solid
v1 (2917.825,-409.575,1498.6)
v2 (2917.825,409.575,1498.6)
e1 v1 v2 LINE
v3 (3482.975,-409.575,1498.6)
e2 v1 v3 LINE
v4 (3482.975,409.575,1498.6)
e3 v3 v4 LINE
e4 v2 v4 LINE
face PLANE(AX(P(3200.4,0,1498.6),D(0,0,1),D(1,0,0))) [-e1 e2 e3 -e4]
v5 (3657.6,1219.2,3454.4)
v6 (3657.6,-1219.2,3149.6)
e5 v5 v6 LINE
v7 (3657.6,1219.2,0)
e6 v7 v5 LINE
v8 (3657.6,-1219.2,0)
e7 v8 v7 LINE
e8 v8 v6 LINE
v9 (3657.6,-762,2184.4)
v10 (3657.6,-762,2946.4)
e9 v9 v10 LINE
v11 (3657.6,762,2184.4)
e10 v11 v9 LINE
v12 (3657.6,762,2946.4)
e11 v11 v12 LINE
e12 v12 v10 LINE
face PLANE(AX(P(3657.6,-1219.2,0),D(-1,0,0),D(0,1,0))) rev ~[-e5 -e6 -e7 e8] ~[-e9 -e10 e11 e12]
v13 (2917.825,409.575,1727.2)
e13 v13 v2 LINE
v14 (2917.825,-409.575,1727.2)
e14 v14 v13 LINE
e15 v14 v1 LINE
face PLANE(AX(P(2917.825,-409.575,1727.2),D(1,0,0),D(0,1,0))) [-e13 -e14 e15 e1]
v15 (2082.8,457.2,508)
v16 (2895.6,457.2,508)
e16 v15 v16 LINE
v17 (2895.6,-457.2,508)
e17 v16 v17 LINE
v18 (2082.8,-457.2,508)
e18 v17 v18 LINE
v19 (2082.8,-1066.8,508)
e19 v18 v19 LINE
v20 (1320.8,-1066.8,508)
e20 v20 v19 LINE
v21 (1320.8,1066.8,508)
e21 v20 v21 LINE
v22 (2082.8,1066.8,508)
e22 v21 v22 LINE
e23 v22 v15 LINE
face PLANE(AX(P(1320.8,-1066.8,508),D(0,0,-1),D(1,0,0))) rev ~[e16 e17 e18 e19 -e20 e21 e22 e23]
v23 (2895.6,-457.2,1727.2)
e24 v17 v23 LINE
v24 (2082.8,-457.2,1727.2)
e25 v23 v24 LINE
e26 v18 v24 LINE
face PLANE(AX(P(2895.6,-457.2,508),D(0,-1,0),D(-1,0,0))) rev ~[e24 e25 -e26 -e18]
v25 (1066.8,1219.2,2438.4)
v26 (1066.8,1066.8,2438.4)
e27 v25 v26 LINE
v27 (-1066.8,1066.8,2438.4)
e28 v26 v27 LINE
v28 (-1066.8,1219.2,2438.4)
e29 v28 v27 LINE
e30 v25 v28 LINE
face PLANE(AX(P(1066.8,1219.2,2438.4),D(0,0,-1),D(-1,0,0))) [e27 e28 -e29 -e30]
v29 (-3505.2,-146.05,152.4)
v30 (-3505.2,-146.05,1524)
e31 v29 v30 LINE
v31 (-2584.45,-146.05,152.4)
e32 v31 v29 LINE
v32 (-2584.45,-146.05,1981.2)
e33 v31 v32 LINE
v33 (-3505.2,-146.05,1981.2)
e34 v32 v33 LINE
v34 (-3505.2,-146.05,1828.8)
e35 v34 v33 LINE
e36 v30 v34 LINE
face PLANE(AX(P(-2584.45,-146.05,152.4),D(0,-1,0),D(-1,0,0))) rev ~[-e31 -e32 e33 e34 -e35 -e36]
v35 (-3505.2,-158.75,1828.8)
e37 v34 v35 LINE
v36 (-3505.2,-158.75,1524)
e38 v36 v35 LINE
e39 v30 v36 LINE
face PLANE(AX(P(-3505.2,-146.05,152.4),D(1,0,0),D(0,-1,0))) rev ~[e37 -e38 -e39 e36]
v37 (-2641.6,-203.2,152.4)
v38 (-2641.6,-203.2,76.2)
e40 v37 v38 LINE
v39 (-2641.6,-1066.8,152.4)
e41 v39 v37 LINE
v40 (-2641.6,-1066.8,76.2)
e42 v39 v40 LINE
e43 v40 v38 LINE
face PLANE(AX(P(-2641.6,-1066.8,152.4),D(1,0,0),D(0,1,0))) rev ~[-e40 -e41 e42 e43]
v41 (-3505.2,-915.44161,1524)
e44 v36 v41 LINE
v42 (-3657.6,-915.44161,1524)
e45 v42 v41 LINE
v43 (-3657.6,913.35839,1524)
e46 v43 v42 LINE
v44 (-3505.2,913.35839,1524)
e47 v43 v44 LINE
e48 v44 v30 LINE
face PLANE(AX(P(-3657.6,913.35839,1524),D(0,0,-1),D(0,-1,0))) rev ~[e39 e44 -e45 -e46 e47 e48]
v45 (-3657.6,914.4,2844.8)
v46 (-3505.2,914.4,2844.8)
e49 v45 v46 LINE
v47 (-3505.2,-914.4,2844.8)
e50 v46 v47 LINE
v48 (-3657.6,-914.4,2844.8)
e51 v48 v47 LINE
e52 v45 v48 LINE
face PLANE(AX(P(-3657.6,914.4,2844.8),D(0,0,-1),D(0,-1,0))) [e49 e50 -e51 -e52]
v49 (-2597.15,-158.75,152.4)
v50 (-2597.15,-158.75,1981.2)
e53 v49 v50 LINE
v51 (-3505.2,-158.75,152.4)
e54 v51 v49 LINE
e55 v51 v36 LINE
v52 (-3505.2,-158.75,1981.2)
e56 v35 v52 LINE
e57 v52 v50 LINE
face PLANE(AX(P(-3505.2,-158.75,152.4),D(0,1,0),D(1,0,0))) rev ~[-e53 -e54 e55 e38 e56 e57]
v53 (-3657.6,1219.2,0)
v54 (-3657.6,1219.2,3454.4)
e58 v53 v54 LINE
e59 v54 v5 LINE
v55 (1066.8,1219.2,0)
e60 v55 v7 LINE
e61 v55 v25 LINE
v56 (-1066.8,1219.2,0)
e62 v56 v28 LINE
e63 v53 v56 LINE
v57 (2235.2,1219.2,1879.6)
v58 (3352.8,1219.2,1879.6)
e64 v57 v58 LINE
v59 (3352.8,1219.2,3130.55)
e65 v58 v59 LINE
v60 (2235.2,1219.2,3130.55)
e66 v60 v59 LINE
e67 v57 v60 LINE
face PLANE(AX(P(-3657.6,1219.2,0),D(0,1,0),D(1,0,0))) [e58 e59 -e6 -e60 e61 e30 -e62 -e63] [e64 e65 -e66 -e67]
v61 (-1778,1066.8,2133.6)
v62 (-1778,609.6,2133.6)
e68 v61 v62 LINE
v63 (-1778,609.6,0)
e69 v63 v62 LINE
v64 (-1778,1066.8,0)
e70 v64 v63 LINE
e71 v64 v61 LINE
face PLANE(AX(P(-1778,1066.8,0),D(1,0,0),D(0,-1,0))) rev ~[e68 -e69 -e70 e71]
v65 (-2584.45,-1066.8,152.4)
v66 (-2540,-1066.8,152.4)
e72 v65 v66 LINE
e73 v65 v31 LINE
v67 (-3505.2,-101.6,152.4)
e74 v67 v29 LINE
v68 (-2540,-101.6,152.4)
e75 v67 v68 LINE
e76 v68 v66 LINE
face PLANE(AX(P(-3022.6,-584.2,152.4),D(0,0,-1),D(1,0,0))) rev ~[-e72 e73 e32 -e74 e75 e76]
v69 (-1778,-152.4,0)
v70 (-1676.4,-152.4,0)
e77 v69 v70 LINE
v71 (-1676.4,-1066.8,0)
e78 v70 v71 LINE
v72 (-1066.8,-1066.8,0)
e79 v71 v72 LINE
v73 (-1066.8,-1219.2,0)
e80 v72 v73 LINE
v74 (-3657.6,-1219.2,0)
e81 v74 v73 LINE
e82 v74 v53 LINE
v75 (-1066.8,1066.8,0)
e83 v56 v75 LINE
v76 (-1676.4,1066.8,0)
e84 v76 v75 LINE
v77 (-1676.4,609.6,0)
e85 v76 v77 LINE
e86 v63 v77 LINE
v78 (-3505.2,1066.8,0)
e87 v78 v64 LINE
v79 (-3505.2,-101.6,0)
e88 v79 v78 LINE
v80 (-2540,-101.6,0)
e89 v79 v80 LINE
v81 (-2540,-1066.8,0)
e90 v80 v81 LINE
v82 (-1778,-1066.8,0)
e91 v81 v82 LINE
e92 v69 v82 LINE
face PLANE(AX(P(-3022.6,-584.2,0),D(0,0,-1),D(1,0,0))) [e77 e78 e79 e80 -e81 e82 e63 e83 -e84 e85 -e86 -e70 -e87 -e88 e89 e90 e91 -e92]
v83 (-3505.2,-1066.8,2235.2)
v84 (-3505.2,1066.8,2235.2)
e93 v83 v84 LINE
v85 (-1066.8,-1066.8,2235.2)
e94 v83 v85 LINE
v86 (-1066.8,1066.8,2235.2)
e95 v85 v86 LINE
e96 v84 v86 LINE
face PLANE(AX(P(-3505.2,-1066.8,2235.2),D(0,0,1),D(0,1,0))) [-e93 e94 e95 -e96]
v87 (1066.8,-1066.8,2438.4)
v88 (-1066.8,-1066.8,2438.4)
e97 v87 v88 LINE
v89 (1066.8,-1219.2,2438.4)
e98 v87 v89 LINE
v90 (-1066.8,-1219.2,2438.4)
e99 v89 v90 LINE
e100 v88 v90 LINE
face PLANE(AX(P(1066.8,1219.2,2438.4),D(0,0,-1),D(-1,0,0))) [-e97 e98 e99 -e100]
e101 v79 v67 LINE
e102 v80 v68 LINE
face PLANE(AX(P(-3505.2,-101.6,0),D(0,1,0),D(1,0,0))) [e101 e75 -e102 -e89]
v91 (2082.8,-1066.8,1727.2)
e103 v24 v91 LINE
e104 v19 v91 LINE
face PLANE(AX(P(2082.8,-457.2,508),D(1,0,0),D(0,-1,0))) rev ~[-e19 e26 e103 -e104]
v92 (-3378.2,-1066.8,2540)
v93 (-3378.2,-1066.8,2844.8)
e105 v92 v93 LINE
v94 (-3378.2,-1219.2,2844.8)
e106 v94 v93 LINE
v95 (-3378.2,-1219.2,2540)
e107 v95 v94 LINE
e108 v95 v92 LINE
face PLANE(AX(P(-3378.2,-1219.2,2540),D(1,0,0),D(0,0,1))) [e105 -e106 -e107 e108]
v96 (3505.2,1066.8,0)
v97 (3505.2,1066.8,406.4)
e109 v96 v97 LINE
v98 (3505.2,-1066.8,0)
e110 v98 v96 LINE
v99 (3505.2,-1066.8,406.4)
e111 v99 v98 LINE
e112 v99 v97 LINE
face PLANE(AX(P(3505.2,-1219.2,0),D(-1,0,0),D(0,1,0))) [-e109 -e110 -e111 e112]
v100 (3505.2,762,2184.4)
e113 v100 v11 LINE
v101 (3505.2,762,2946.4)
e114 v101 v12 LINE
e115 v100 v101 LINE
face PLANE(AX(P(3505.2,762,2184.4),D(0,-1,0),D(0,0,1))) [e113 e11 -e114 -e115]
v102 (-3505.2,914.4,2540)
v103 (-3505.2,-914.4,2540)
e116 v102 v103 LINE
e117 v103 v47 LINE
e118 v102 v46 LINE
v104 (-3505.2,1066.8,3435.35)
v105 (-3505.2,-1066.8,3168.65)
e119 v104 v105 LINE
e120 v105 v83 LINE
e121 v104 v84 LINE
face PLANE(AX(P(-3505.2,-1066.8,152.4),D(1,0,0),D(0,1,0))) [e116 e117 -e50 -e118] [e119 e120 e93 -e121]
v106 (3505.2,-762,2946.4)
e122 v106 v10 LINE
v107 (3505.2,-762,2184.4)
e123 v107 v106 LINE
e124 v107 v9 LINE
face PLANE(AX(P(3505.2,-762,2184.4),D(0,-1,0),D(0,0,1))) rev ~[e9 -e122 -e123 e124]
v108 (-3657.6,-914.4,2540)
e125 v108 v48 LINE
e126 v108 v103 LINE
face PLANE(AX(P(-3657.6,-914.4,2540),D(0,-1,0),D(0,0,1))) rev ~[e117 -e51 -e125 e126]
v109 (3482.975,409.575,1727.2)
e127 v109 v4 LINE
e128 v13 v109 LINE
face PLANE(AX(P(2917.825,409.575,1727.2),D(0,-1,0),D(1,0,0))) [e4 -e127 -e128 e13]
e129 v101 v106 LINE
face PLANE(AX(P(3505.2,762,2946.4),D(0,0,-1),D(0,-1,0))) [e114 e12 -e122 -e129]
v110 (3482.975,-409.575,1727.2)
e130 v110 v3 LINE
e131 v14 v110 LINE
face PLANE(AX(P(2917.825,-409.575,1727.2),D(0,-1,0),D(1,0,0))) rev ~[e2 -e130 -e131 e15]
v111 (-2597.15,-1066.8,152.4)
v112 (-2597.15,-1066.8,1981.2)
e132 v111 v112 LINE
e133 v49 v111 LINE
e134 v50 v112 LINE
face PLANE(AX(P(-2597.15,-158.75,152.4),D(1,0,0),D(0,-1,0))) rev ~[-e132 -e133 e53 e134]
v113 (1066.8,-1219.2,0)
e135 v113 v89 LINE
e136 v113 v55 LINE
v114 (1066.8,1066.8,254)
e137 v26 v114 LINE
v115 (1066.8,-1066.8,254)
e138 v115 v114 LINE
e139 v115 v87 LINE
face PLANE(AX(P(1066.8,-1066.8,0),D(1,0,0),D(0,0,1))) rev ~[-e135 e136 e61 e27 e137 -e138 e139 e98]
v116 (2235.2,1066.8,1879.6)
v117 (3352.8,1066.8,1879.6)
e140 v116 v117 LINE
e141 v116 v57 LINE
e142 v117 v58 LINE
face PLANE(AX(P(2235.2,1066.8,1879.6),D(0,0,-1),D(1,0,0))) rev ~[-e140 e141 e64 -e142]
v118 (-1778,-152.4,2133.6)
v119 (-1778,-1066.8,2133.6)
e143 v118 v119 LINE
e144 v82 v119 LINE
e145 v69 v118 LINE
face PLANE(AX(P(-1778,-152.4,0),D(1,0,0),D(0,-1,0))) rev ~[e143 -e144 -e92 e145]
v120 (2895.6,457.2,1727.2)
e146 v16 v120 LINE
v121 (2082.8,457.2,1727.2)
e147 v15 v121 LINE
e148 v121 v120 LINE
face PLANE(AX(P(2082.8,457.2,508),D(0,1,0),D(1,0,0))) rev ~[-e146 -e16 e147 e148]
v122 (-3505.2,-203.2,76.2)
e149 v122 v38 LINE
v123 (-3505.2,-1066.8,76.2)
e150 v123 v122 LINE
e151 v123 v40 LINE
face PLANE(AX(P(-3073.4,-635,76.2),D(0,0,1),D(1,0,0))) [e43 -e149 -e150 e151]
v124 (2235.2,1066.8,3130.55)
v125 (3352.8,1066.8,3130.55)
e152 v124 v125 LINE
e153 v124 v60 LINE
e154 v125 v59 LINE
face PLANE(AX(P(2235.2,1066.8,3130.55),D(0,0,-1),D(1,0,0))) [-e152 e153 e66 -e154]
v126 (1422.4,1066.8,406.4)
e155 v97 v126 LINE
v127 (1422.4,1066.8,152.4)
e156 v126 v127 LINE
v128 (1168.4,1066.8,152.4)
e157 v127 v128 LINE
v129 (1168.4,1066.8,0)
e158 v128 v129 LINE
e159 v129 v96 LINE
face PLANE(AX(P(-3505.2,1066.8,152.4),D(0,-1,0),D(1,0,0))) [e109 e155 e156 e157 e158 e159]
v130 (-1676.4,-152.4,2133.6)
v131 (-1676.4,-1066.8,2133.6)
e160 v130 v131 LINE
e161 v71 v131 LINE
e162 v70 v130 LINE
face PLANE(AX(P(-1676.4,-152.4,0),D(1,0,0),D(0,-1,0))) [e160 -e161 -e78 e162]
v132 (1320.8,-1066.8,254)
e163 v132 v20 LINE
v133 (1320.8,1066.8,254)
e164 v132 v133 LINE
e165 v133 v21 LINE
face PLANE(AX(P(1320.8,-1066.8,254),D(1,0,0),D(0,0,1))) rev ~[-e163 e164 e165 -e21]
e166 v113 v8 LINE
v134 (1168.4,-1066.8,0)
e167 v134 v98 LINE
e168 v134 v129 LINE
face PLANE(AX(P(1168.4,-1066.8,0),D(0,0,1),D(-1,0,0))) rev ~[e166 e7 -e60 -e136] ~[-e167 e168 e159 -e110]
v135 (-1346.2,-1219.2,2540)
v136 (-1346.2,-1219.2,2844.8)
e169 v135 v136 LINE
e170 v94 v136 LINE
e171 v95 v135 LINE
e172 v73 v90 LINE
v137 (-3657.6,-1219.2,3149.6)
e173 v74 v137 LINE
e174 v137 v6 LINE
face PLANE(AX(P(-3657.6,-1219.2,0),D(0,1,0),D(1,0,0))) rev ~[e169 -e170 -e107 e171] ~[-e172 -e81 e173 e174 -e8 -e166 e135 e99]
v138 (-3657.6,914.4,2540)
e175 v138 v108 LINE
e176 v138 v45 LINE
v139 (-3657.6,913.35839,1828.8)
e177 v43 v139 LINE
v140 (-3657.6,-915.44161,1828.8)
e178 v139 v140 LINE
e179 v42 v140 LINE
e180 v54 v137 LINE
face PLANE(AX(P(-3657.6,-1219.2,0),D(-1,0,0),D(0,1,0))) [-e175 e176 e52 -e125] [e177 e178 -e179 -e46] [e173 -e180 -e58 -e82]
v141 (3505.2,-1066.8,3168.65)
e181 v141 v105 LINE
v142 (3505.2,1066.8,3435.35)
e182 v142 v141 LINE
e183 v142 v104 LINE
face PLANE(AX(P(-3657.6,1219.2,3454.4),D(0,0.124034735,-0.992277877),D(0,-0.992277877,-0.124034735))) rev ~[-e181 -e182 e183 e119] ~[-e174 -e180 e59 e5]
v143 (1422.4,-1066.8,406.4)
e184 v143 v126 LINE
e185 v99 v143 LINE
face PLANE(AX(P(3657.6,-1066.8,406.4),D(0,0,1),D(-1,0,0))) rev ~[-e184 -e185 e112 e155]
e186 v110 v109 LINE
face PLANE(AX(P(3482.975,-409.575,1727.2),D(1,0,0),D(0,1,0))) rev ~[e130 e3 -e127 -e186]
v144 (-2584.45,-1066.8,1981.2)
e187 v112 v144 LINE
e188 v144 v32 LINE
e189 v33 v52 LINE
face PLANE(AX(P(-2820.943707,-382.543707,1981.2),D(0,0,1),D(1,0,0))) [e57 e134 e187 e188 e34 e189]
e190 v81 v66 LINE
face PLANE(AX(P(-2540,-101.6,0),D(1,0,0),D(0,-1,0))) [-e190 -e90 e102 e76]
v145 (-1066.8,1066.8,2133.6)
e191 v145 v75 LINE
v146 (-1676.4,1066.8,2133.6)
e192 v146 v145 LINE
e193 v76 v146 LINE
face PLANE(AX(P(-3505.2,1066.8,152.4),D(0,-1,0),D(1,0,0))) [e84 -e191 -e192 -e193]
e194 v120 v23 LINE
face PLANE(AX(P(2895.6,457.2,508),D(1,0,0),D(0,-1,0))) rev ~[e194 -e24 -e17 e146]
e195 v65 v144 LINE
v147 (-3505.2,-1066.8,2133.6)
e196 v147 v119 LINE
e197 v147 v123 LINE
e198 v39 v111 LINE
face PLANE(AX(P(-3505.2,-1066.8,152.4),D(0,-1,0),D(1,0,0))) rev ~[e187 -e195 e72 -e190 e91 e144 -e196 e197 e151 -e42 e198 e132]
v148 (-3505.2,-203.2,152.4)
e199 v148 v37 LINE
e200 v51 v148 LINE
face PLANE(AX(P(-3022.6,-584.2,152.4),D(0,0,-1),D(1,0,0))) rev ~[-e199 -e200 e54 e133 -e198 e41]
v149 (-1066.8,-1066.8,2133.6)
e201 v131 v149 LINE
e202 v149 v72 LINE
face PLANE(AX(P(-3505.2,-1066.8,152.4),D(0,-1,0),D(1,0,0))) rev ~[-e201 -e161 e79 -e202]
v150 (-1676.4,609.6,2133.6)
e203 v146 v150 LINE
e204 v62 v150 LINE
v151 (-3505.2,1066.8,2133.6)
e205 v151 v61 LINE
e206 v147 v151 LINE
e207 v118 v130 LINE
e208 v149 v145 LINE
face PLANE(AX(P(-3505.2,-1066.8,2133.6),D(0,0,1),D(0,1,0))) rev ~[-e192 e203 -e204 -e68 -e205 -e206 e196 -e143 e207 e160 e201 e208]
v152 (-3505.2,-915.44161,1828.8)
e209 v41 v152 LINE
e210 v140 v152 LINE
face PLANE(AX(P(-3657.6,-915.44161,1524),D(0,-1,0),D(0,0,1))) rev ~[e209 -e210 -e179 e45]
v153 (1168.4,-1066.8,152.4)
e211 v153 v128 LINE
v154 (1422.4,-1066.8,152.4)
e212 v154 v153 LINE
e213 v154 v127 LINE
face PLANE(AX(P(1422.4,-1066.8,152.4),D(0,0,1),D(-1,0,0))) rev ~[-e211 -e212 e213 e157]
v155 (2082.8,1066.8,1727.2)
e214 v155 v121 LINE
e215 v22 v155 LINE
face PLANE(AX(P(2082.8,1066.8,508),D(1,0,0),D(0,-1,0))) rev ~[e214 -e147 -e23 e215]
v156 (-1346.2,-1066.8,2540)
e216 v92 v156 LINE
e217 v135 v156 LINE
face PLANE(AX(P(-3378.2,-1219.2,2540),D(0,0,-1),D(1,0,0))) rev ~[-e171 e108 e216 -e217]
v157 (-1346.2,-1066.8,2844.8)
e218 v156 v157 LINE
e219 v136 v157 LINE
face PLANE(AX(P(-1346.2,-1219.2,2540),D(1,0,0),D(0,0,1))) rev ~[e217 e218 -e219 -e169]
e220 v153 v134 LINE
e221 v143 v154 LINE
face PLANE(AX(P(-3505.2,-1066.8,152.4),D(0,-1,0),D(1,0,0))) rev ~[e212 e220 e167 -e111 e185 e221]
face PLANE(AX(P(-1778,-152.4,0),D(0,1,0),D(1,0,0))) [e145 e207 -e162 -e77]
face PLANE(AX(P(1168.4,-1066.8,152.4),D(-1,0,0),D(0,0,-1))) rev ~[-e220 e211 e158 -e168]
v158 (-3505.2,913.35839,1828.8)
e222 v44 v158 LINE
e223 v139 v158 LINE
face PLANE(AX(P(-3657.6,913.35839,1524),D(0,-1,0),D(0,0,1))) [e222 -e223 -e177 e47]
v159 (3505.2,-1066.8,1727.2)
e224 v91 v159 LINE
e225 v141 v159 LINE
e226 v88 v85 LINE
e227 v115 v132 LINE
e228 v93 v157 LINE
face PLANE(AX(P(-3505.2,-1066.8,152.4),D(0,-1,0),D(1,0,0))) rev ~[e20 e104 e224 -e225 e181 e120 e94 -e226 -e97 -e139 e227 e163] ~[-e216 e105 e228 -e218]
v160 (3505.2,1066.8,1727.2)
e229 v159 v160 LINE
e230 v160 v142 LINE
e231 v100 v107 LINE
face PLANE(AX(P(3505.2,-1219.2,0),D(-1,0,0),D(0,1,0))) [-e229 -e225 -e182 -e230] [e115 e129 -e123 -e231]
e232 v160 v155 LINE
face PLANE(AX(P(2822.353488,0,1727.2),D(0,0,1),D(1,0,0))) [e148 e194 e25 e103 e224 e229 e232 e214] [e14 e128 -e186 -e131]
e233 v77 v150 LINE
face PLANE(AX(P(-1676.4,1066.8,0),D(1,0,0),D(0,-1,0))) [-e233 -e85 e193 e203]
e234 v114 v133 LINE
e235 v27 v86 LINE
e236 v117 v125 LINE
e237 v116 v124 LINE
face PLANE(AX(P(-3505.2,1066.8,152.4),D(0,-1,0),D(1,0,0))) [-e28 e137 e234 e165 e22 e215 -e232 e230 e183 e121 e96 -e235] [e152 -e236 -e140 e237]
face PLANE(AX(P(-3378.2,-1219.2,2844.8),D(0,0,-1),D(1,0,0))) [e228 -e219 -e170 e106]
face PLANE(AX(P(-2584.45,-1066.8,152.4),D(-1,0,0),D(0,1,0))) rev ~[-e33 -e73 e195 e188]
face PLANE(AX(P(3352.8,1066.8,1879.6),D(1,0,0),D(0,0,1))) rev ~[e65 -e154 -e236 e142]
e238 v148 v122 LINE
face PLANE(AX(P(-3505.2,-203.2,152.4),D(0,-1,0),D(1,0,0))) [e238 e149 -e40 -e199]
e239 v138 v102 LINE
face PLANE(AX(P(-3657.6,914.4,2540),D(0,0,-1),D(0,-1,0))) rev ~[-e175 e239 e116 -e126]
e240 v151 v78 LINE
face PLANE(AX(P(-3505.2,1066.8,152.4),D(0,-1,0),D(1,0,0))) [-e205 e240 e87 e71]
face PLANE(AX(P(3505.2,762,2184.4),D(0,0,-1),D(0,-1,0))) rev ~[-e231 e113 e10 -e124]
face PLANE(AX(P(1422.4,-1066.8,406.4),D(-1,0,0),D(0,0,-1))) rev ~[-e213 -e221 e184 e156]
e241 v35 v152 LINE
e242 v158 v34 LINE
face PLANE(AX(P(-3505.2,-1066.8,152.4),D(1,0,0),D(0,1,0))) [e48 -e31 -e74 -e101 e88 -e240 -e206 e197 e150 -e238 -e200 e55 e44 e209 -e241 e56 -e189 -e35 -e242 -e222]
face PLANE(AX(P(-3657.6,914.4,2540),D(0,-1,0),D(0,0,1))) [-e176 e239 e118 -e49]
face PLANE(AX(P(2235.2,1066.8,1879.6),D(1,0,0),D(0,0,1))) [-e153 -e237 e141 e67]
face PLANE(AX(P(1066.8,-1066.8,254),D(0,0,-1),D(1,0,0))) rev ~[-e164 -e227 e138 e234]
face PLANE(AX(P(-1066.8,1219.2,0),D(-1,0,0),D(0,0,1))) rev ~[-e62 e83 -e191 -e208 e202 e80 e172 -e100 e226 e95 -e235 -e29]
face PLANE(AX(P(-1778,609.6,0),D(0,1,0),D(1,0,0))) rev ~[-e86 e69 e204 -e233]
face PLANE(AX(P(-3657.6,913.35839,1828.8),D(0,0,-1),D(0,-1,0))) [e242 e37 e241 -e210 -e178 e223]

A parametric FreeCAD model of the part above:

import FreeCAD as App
import Part
import Sketcher
Q = App.Units.Quantity


def faces_at(feature, points):
    """Names of the faces that lie closest to the given points."""
    faces = feature.Shape.Faces
    near = lambda p: min(range(len(faces)), key=lambda i: faces[i].distToShape(Part.Vertex(*p))[0])
    return sorted({f"Face{near(p) + 1}" for p in points})

doc = App.newDocument("Part")
body = doc.addObject("PartDesign::Body", "Body")

sketch1 = body.newObject("Sketcher::SketchObject", "Sketch")
sketch1.AttachmentSupport = (doc.getObject("XY_Plane"), [""])
sketch1.MapMode = "FlatFace"
sketch1.addGeometry([
    Part.LineSegment(App.Vector(-3658, 1219, 0), App.Vector(-3658, -1219, 0)),
    Part.LineSegment(App.Vector(-3658, -1219, 0), App.Vector(3658, -1219, 0)),
    Part.LineSegment(App.Vector(3658, -1219, 0), App.Vector(3658, 1219, 0)),
    Part.LineSegment(App.Vector(3658, 1219, 0), App.Vector(-3658, 1219, 0)),
], False)
sketch1.addConstraint([
    Sketcher.Constraint("Coincident", 0, 2, 1, 1),
    Sketcher.Constraint("Coincident", 1, 2, 2, 1),
    Sketcher.Constraint("Coincident", 2, 2, 3, 1),
    Sketcher.Constraint("Coincident", 3, 2, 0, 1),
    Sketcher.Constraint("Vertical", 0),
    Sketcher.Constraint("Horizontal", 1),
    Sketcher.Constraint("Vertical", 2),
    Sketcher.Constraint("Horizontal", 3),
    Sketcher.Constraint("Symmetric", 0, 2, 2, 2, -1, 1),
    Sketcher.Constraint("DistanceX", 1, 1, 1, 2, Q("288 in")),
    Sketcher.Constraint("DistanceY", 0, 2, 0, 1, Q("96 in")),
])
pad1 = body.newObject("PartDesign::Pad", "Pad")
pad1.Profile = sketch1
pad1.Length = Q("136 in")
doc.recompute()

thickness = body.newObject("PartDesign::Thickness", "Thickness")
thickness.Base = (pad1, faces_at(pad1, [(0, 0, 3454.4)]))
thickness.Value = Q("6 in")
thickness.Reversed = True
thickness.Join = "Arc"

sketch2 = body.newObject("Sketcher::SketchObject", "Sketch001")
sketch2.AttachmentSupport = (doc.getObject("YZ_Plane"), [""])
sketch2.MapMode = "FlatFace"
sketch2.AttachmentOffset = App.Placement(App.Vector(0, 0, -144 * 25.4), App.Rotation())
sketch2.addGeometry([
    Part.LineSegment(App.Vector(-1219, 3454, 0), App.Vector(1219, 3454, 0)),
    Part.LineSegment(App.Vector(1219, 3454, 0), App.Vector(-1219, 3150, 0)),
    Part.LineSegment(App.Vector(-1219, 3150, 0), App.Vector(-1219, 3454, 0)),
], False)
sketch2.addConstraint([
    Sketcher.Constraint("Coincident", 0, 2, 1, 1),
    Sketcher.Constraint("Coincident", 1, 2, 2, 1),
    Sketcher.Constraint("Coincident", 2, 2, 0, 1),
    Sketcher.Constraint("Horizontal", 0),
    Sketcher.Constraint("Vertical", 2),
    Sketcher.Constraint("DistanceX", 0, 1, 0, 2, Q("96 in")),
    Sketcher.Constraint("DistanceY", 2, 1, 2, 2, Q("12 in")),
    Sketcher.Constraint("DistanceX", -1, 1, 0, 2, Q("48 in")),
    Sketcher.Constraint("DistanceY", -1, 1, 0, 2, Q("136 in")),
])
pocket1 = body.newObject("PartDesign::Pocket", "Pocket")
pocket1.Profile = sketch2
pocket1.Type = "ThroughAll"
pocket1.Reversed = True

sketch3 = body.newObject("Sketcher::SketchObject", "Sketch002")
sketch3.AttachmentSupport = (doc.getObject("XZ_Plane"), [""])
sketch3.MapMode = "FlatFace"
sketch3.AttachmentOffset = App.Placement(App.Vector(0, 0, -48 * 25.4), App.Rotation())
sketch3.addGeometry([
    Part.LineSegment(App.Vector(1067, 2438, 0), App.Vector(1067, 0, 0)),
    Part.LineSegment(App.Vector(1067, 0, 0), App.Vector(-1067, 0, 0)),
    Part.LineSegment(App.Vector(-1067, 0, 0), App.Vector(-1067, 2438, 0)),
    Part.LineSegment(App.Vector(-1067, 2438, 0), App.Vector(1067, 2438, 0)),
], False)
sketch3.addConstraint([
    Sketcher.Constraint("Coincident", 0, 2, 1, 1),
    Sketcher.Constraint("Coincident", 1, 2, 2, 1),
    Sketcher.Constraint("Coincident", 2, 2, 3, 1),
    Sketcher.Constraint("Coincident", 3, 2, 0, 1),
    Sketcher.Constraint("Vertical", 0),
    Sketcher.Constraint("Horizontal", 1),
    Sketcher.Constraint("Vertical", 2),
    Sketcher.Constraint("Horizontal", 3),
    Sketcher.Constraint("Symmetric", 0, 2, 1, 2, -1, 1),
    Sketcher.Constraint("DistanceX", 1, 2, 1, 1, Q("84 in")),
    Sketcher.Constraint("DistanceY", 0, 2, 0, 1, Q("96 in")),
])
pocket2 = body.newObject("PartDesign::Pocket", "Pocket001")
pocket2.Profile = sketch3
pocket2.Type = "ThroughAll"
pocket2.Reversed = True

sketch4 = body.newObject("Sketcher::SketchObject", "Sketch003")
sketch4.AttachmentSupport = (doc.getObject("XY_Plane"), [""])
sketch4.MapMode = "FlatFace"
sketch4.AttachmentOffset = App.Placement(App.Vector(0, 0, 6 * 25.4), App.Rotation())
sketch4.addGeometry([
    Part.LineSegment(App.Vector(-3505, 1067, 0), App.Vector(-3505, -1067, 0)),
    Part.LineSegment(App.Vector(-3505, -1067, 0), App.Vector(3505, -1067, 0)),
    Part.LineSegment(App.Vector(3505, -1067, 0), App.Vector(3505, 1067, 0)),
    Part.LineSegment(App.Vector(3505, 1067, 0), App.Vector(-3505, 1067, 0)),
], False)
sketch4.addConstraint([
    Sketcher.Constraint("Coincident", 0, 2, 1, 1),
    Sketcher.Constraint("Coincident", 1, 2, 2, 1),
    Sketcher.Constraint("Coincident", 2, 2, 3, 1),
    Sketcher.Constraint("Coincident", 3, 2, 0, 1),
    Sketcher.Constraint("Vertical", 0),
    Sketcher.Constraint("Horizontal", 1),
    Sketcher.Constraint("Vertical", 2),
    Sketcher.Constraint("Horizontal", 3),
    Sketcher.Constraint("Symmetric", 0, 2, 2, 2, -1, 1),
    Sketcher.Constraint("DistanceX", 1, 1, 1, 2, Q("276 in")),
    Sketcher.Constraint("DistanceY", 0, 2, 0, 1, Q("84 in")),
])
pocket3 = body.newObject("PartDesign::Pocket", "Pocket002")
pocket3.Profile = sketch4
pocket3.Type = "ThroughAll"

sketch5 = body.newObject("Sketcher::SketchObject", "Sketch004")
sketch5.AttachmentSupport = (doc.getObject("YZ_Plane"), [""])
sketch5.MapMode = "FlatFace"
sketch5.AttachmentOffset = App.Placement(App.Vector(0, 0, -138 * 25.4), App.Rotation())
sketch5.addGeometry([
    Part.LineSegment(App.Vector(-1067, 2235, 0), App.Vector(-1067, 2134, 0)),
    Part.LineSegment(App.Vector(-1067, 2134, 0), App.Vector(1067, 2134, 0)),
    Part.LineSegment(App.Vector(1067, 2134, 0), App.Vector(1067, 2235, 0)),
    Part.LineSegment(App.Vector(1067, 2235, 0), App.Vector(-1067, 2235, 0)),
], False)
sketch5.addConstraint([
    Sketcher.Constraint("Coincident", 0, 2, 1, 1),
    Sketcher.Constraint("Coincident", 1, 2, 2, 1),
    Sketcher.Constraint("Coincident", 2, 2, 3, 1),
    Sketcher.Constraint("Coincident", 3, 2, 0, 1),
    Sketcher.Constraint("Vertical", 0),
    Sketcher.Constraint("Horizontal", 1),
    Sketcher.Constraint("Vertical", 2),
    Sketcher.Constraint("Horizontal", 3),
    Sketcher.Constraint("DistanceX", 1, 1, 1, 2, Q("84 in")),
    Sketcher.Constraint("DistanceY", 0, 2, 0, 1, Q("4 in")),
    Sketcher.Constraint("DistanceX", 0, 2, -1, 1, Q("42 in")),
    Sketcher.Constraint("DistanceY", -1, 1, 0, 2, Q("84 in")),
])
pad2 = body.newObject("PartDesign::Pad", "Pad001")
pad2.Profile = sketch5
pad2.Length = Q("96 in")

sketch6 = body.newObject("Sketcher::SketchObject", "Sketch005")
sketch6.AttachmentSupport = (doc.getObject("XZ_Plane"), [""])
sketch6.MapMode = "FlatFace"
sketch6.AttachmentOffset = App.Placement(App.Vector(0, 0, 42 * 25.4), App.Rotation())
sketch6.addGeometry([
    Part.LineSegment(App.Vector(1168, 0, 0), App.Vector(1067, 0, 0)),
    Part.LineSegment(App.Vector(1067, 0, 0), App.Vector(1067, 254, 0)),
    Part.LineSegment(App.Vector(1067, 254, 0), App.Vector(1321, 254, 0)),
    Part.LineSegment(App.Vector(1321, 254, 0), App.Vector(1321, 508, 0)),
    Part.LineSegment(App.Vector(1321, 508, 0), App.Vector(3658, 508, 0)),
    Part.LineSegment(App.Vector(3658, 508, 0), App.Vector(3658, 406, 0)),
    Part.LineSegment(App.Vector(3658, 406, 0), App.Vector(1422, 406, 0)),
    Part.LineSegment(App.Vector(1422, 406, 0), App.Vector(1422, 152, 0)),
    Part.LineSegment(App.Vector(1422, 152, 0), App.Vector(1168, 152, 0)),
    Part.LineSegment(App.Vector(1168, 152, 0), App.Vector(1168, 0, 0)),
], False)
sketch6.addConstraint([
    Sketcher.Constraint("Coincident", 0, 2, 1, 1),
    Sketcher.Constraint("Coincident", 1, 2, 2, 1),
    Sketcher.Constraint("Coincident", 2, 2, 3, 1),
    Sketcher.Constraint("Coincident", 3, 2, 4, 1),
    Sketcher.Constraint("Coincident", 4, 2, 5, 1),
    Sketcher.Constraint("Coincident", 5, 2, 6, 1),
    Sketcher.Constraint("Coincident", 6, 2, 7, 1),
    Sketcher.Constraint("Coincident", 7, 2, 8, 1),
    Sketcher.Constraint("Coincident", 8, 2, 9, 1),
    Sketcher.Constraint("Coincident", 9, 2, 0, 1),
    Sketcher.Constraint("Horizontal", 0),
    Sketcher.Constraint("Vertical", 1),
    Sketcher.Constraint("Horizontal", 2),
    Sketcher.Constraint("Vertical", 3),
    Sketcher.Constraint("Horizontal", 4),
    Sketcher.Constraint("Vertical", 5),
    Sketcher.Constraint("Horizontal", 6),
    Sketcher.Constraint("Vertical", 7),
    Sketcher.Constraint("Horizontal", 8),
    Sketcher.Constraint("Vertical", 9),
    Sketcher.Constraint("PointOnObject", 0, 2, -1),
    Sketcher.Constraint("Equal", 2, 8),
    Sketcher.Constraint("Equal", 8, 1),
    Sketcher.Constraint("Equal", 1, 3),
    Sketcher.Constraint("Equal", 0, 5),
    Sketcher.Constraint("Equal", 3, 7),
    Sketcher.Constraint("DistanceX", 0, 2, 0, 1, Q("4 in")),
    Sketcher.Constraint("DistanceX", 2, 1, 2, 2, Q("10 in")),
    Sketcher.Constraint("DistanceX", 4, 1, 4, 2, Q("92 in")),
    Sketcher.Constraint("DistanceX", -1, 1, 0, 2, Q("42 in")),
])
pad3 = body.newObject("PartDesign::Pad", "Pad002")
pad3.Profile = sketch6
pad3.Type = "UpToLast"
pad3.Reversed = True

sketch7 = body.newObject("Sketcher::SketchObject", "Sketch006")
sketch7.AttachmentSupport = (doc.getObject("XZ_Plane"), [""])
sketch7.MapMode = "FlatFace"
sketch7.AttachmentOffset = App.Placement(App.Vector(0, 0, -42 * 25.4), App.Rotation())
sketch7.addGeometry([
    Part.LineSegment(App.Vector(2235, 3131, 0), App.Vector(2235, 1880, 0)),
    Part.LineSegment(App.Vector(2235, 1880, 0), App.Vector(3353, 1880, 0)),
    Part.LineSegment(App.Vector(3353, 1880, 0), App.Vector(3353, 3131, 0)),
    Part.LineSegment(App.Vector(3353, 3131, 0), App.Vector(2235, 3131, 0)),
], False)
sketch7.addConstraint([
    Sketcher.Constraint("Coincident", 0, 2, 1, 1),
    Sketcher.Constraint("Coincident", 1, 2, 2, 1),
    Sketcher.Constraint("Coincident", 2, 2, 3, 1),
    Sketcher.Constraint("Coincident", 3, 2, 0, 1),
    Sketcher.Constraint("Vertical", 0),
    Sketcher.Constraint("Horizontal", 1),
    Sketcher.Constraint("Vertical", 2),
    Sketcher.Constraint("Horizontal", 3),
    Sketcher.Constraint("DistanceX", 1, 1, 1, 2, Q("44 in")),
    Sketcher.Constraint("DistanceX", -1, 1, 0, 2, Q("88 in")),
    Sketcher.Constraint("DistanceY", -1, 1, 0, 2, Q("74 in")),
    Sketcher.Constraint("DistanceY", 0, 2, 0, 1, Q("49.25 in")),
])
pocket4 = body.newObject("PartDesign::Pocket", "Pocket003")
pocket4.Profile = sketch7
pocket4.Type = "ThroughAll"

sketch8 = body.newObject("Sketcher::SketchObject", "Sketch007")
sketch8.AttachmentSupport = (doc.getObject("XY_Plane"), [""])
sketch8.MapMode = "FlatFace"
sketch8.AttachmentOffset = App.Placement(App.Vector(0, 0, 20 * 25.4), App.Rotation())
sketch8.addGeometry([
    Part.LineSegment(App.Vector(3505, 1067, 0), App.Vector(2083, 1067, 0)),
    Part.LineSegment(App.Vector(2083, 1067, 0), App.Vector(2083, 457, 0)),
    Part.LineSegment(App.Vector(2083, 457, 0), App.Vector(2896, 457, 0)),
    Part.LineSegment(App.Vector(2896, 457, 0), App.Vector(2896, -457, 0)),
    Part.LineSegment(App.Vector(2896, -457, 0), App.Vector(2083, -457, 0)),
    Part.LineSegment(App.Vector(2083, -457, 0), App.Vector(2083, -1067, 0)),
    Part.LineSegment(App.Vector(2083, -1067, 0), App.Vector(3505, -1067, 0)),
    Part.LineSegment(App.Vector(3505, -1067, 0), App.Vector(3505, 1067, 0)),
], False)
sketch8.addConstraint([
    Sketcher.Constraint("Coincident", 0, 2, 1, 1),
    Sketcher.Constraint("Coincident", 1, 2, 2, 1),
    Sketcher.Constraint("Coincident", 2, 2, 3, 1),
    Sketcher.Constraint("Coincident", 3, 2, 4, 1),
    Sketcher.Constraint("Coincident", 4, 2, 5, 1),
    Sketcher.Constraint("Coincident", 5, 2, 6, 1),
    Sketcher.Constraint("Coincident", 6, 2, 7, 1),
    Sketcher.Constraint("Coincident", 7, 2, 0, 1),
    Sketcher.Constraint("Horizontal", 0),
    Sketcher.Constraint("Vertical", 1),
    Sketcher.Constraint("Horizontal", 2),
    Sketcher.Constraint("Vertical", 3),
    Sketcher.Constraint("Horizontal", 4),
    Sketcher.Constraint("Vertical", 5),
    Sketcher.Constraint("Horizontal", 6),
    Sketcher.Constraint("Vertical", 7),
    Sketcher.Constraint("Symmetric", 1, 2, 4, 2, -1),
    Sketcher.Constraint("Equal", 1, 5),
    Sketcher.Constraint("DistanceX", 0, 2, 0, 1, Q("56 in")),
    Sketcher.Constraint("DistanceX", 2, 1, 2, 2, Q("32 in")),
    Sketcher.Constraint("DistanceY", 1, 2, 1, 1, Q("24 in")),
    Sketcher.Constraint("DistanceY", 3, 2, 3, 1, Q("36 in")),
    Sketcher.Constraint("DistanceX", -1, 1, 0, 2, Q("82 in")),
])
pad4 = body.newObject("PartDesign::Pad", "Pad003")
pad4.Profile = sketch8
pad4.Length = Q("48 in")

sketch9 = body.newObject("Sketcher::SketchObject", "Sketch008")
sketch9.AttachmentSupport = (doc.getObject("YZ_Plane"), [""])
sketch9.MapMode = "FlatFace"
sketch9.AttachmentOffset = App.Placement(App.Vector(0, 0, 138 * 25.4), App.Rotation())
sketch9.addGeometry([
    Part.LineSegment(App.Vector(762, 2946, 0), App.Vector(762, 2184, 0)),
    Part.LineSegment(App.Vector(762, 2184, 0), App.Vector(-762, 2184, 0)),
    Part.LineSegment(App.Vector(-762, 2184, 0), App.Vector(-762, 2946, 0)),
    Part.LineSegment(App.Vector(-762, 2946, 0), App.Vector(762, 2946, 0)),
], False)
sketch9.addConstraint([
    Sketcher.Constraint("Coincident", 0, 2, 1, 1),
    Sketcher.Constraint("Coincident", 1, 2, 2, 1),
    Sketcher.Constraint("Coincident", 2, 2, 3, 1),
    Sketcher.Constraint("Coincident", 3, 2, 0, 1),
    Sketcher.Constraint("Vertical", 0),
    Sketcher.Constraint("Horizontal", 1),
    Sketcher.Constraint("Vertical", 2),
    Sketcher.Constraint("Horizontal", 3),
    Sketcher.Constraint("DistanceX", 1, 2, 1, 1, Q("60 in")),
    Sketcher.Constraint("DistanceY", 0, 2, 0, 1, Q("30 in")),
    Sketcher.Constraint("DistanceX", -1, 1, 0, 2, Q("30 in")),
    Sketcher.Constraint("DistanceY", -1, 1, 0, 2, Q("86 in")),
])
pocket5 = body.newObject("PartDesign::Pocket", "Pocket004")
pocket5.Profile = sketch9
pocket5.Type = "ThroughAll"
pocket5.Reversed = True

sketch10 = body.newObject("Sketcher::SketchObject", "Sketch009")
sketch10.AttachmentSupport = (doc.getObject("XY_Plane"), [""])
sketch10.MapMode = "FlatFace"
sketch10.AttachmentOffset = App.Placement(App.Vector(0, 0, 68 * 25.4), App.Rotation())
sketch10.addGeometry([
    Part.LineSegment(App.Vector(2918, 410, 0), App.Vector(2918, -410, 0)),
    Part.LineSegment(App.Vector(2918, -410, 0), App.Vector(3483, -410, 0)),
    Part.LineSegment(App.Vector(3483, -410, 0), App.Vector(3483, 410, 0)),
    Part.LineSegment(App.Vector(3483, 410, 0), App.Vector(2918, 410, 0)),
], False)
sketch10.addConstraint([
    Sketcher.Constraint("Coincident", 0, 2, 1, 1),
    Sketcher.Constraint("Coincident", 1, 2, 2, 1),
    Sketcher.Constraint("Coincident", 2, 2, 3, 1),
    Sketcher.Constraint("Coincident", 3, 2, 0, 1),
    Sketcher.Constraint("Vertical", 0),
    Sketcher.Constraint("Horizontal", 1),
    Sketcher.Constraint("Vertical", 2),
    Sketcher.Constraint("Horizontal", 3),
    Sketcher.Constraint("DistanceX", 1, 1, 1, 2, Q("22.25 in")),
    Sketcher.Constraint("DistanceY", 0, 2, 0, 1, Q("32.25 in")),
    Sketcher.Constraint("DistanceX", -1, 1, 0, 2, Q("114.875 in")),
    Sketcher.Constraint("DistanceY", 0, 2, -1, 1, Q("16.125 in")),
])
pocket6 = body.newObject("PartDesign::Pocket", "Pocket005")
pocket6.Profile = sketch10
pocket6.Length = Q("9 in")

sketch11 = body.newObject("Sketcher::SketchObject", "Sketch010")
sketch11.AttachmentSupport = (doc.getObject("YZ_Plane"), [""])
sketch11.MapMode = "FlatFace"
sketch11.AttachmentOffset = App.Placement(App.Vector(0, 0, -144 * 25.4), App.Rotation())
sketch11.addGeometry([
    Part.LineSegment(App.Vector(914, 2845, 0), App.Vector(914, 2540, 0)),
    Part.LineSegment(App.Vector(914, 2540, 0), App.Vector(-914, 2540, 0)),
    Part.LineSegment(App.Vector(-914, 2540, 0), App.Vector(-914, 2845, 0)),
    Part.LineSegment(App.Vector(-914, 2845, 0), App.Vector(914, 2845, 0)),
    Part.LineSegment(App.Vector(913, 1829, 0), App.Vector(913, 1524, 0)),
    Part.LineSegment(App.Vector(913, 1524, 0), App.Vector(-915, 1524, 0)),
    Part.LineSegment(App.Vector(-915, 1524, 0), App.Vector(-915, 1829, 0)),
    Part.LineSegment(App.Vector(-915, 1829, 0), App.Vector(913, 1829, 0)),
], False)
sketch11.addConstraint([
    Sketcher.Constraint("Coincident", 0, 2, 1, 1),
    Sketcher.Constraint("Coincident", 1, 2, 2, 1),
    Sketcher.Constraint("Coincident", 2, 2, 3, 1),
    Sketcher.Constraint("Coincident", 3, 2, 0, 1),
    Sketcher.Constraint("Coincident", 4, 2, 5, 1),
    Sketcher.Constraint("Coincident", 5, 2, 6, 1),
    Sketcher.Constraint("Coincident", 6, 2, 7, 1),
    Sketcher.Constraint("Coincident", 7, 2, 4, 1),
    Sketcher.Constraint("Vertical", 0),
    Sketcher.Constraint("Horizontal", 1),
    Sketcher.Constraint("Vertical", 2),
    Sketcher.Constraint("Horizontal", 3),
    Sketcher.Constraint("Vertical", 4),
    Sketcher.Constraint("Horizontal", 5),
    Sketcher.Constraint("Vertical", 6),
    Sketcher.Constraint("Horizontal", 7),
    Sketcher.Constraint("Equal", 3, 5),
    Sketcher.Constraint("Equal", 2, 4),
    Sketcher.Constraint("DistanceX", 1, 2, 1, 1, Q("72 in")),
    Sketcher.Constraint("DistanceY", 0, 2, 0, 1, Q("12 in")),
    Sketcher.Constraint("DistanceX", -1, 1, 0, 2, Q("36 in")),
    Sketcher.Constraint("DistanceY", -1, 1, 0, 2, Q("100 in")),
    Sketcher.Constraint("DistanceY", -1, 1, 4, 2, Q("60 in")),
    Sketcher.Constraint("DistanceX", -1, 1, 4, 2, Q("913.35839 mm")),
])
pocket7 = body.newObject("PartDesign::Pocket", "Pocket006")
pocket7.Profile = sketch11
pocket7.Length = Q("6 in")
pocket7.Reversed = True

sketch12 = body.newObject("Sketcher::SketchObject", "Sketch011")
sketch12.AttachmentSupport = (doc.getObject("XY_Plane"), [""])
sketch12.MapMode = "FlatFace"
sketch12.addGeometry([
    Part.LineSegment(App.Vector(-1778, -1067, 0), App.Vector(-1778, -152, 0)),
    Part.LineSegment(App.Vector(-1778, -152, 0), App.Vector(-1676, -152, 0)),
    Part.LineSegment(App.Vector(-1676, -152, 0), App.Vector(-1676, -1067, 0)),
    Part.LineSegment(App.Vector(-1676, -1067, 0), App.Vector(-1778, -1067, 0)),
    Part.LineSegment(App.Vector(-1778, 610, 0), App.Vector(-1778, 1067, 0)),
    Part.LineSegment(App.Vector(-1778, 1067, 0), App.Vector(-1676, 1067, 0)),
    Part.LineSegment(App.Vector(-1676, 1067, 0), App.Vector(-1676, 610, 0)),
    Part.LineSegment(App.Vector(-1676, 610, 0), App.Vector(-1778, 610, 0)),
], False)
sketch12.addConstraint([
    Sketcher.Constraint("Coincident", 0, 2, 1, 1),
    Sketcher.Constraint("Coincident", 1, 2, 2, 1),
    Sketcher.Constraint("Coincident", 2, 2, 3, 1),
    Sketcher.Constraint("Coincident", 3, 2, 0, 1),
    Sketcher.Constraint("Coincident", 4, 2, 5, 1),
    Sketcher.Constraint("Coincident", 5, 2, 6, 1),
    Sketcher.Constraint("Coincident", 6, 2, 7, 1),
    Sketcher.Constraint("Coincident", 7, 2, 4, 1),
    Sketcher.Constraint("Vertical", 0),
    Sketcher.Constraint("Horizontal", 1),
    Sketcher.Constraint("Vertical", 2),
    Sketcher.Constraint("Horizontal", 3),
    Sketcher.Constraint("Vertical", 4),
    Sketcher.Constraint("Horizontal", 5),
    Sketcher.Constraint("Vertical", 6),
    Sketcher.Constraint("Horizontal", 7),
    Sketcher.Constraint("Symmetric", 3, 2, 4, 2, -1),
    Sketcher.Constraint("Vertical", 2, 2, 5, 2),
    Sketcher.Constraint("DistanceX", 1, 1, 1, 2, Q("4 in")),
    Sketcher.Constraint("DistanceY", 0, 1, 0, 2, Q("36 in")),
    Sketcher.Constraint("DistanceY", 4, 1, 4, 2, Q("18 in")),
    Sketcher.Constraint("DistanceX", 0, 2, -1, 1, Q("70 in")),
    Sketcher.Constraint("DistanceY", 0, 2, -1, 1, Q("6 in")),
])
pad5 = body.newObject("PartDesign::Pad", "Pad004")
pad5.Profile = sketch12
pad5.Type = "UpToLast"

sketch13 = body.newObject("Sketcher::SketchObject", "Sketch012")
sketch13.AttachmentSupport = (doc.getObject("XY_Plane"), [""])
sketch13.MapMode = "FlatFace"
sketch13.addGeometry([
    Part.LineSegment(App.Vector(-3505, -1067, 0), App.Vector(-3505, -102, 0)),
    Part.LineSegment(App.Vector(-3505, -102, 0), App.Vector(-2540, -102, 0)),
    Part.LineSegment(App.Vector(-2540, -102, 0), App.Vector(-2540, -1067, 0)),
    Part.LineSegment(App.Vector(-2540, -1067, 0), App.Vector(-3505, -1067, 0)),
], False)
sketch13.addConstraint([
    Sketcher.Constraint("Coincident", 0, 2, 1, 1),
    Sketcher.Constraint("Coincident", 1, 2, 2, 1),
    Sketcher.Constraint("Coincident", 2, 2, 3, 1),
    Sketcher.Constraint("Coincident", 3, 2, 0, 1),
    Sketcher.Constraint("Vertical", 0),
    Sketcher.Constraint("Horizontal", 1),
    Sketcher.Constraint("Vertical", 2),
    Sketcher.Constraint("Horizontal", 3),
    Sketcher.Constraint("Equal", 3, 0),
    Sketcher.Constraint("DistanceX", 1, 1, 1, 2, Q("38 in")),
    Sketcher.Constraint("DistanceX", 0, 2, -1, 1, Q("138 in")),
    Sketcher.Constraint("DistanceY", 0, 2, -1, 1, Q("4 in")),
])
pad6 = body.newObject("PartDesign::Pad", "Pad005")
pad6.Profile = sketch13
pad6.Length = Q("6 in")

sketch14 = body.newObject("Sketcher::SketchObject", "Sketch013")
sketch14.AttachmentSupport = (doc.getObject("XY_Plane"), [""])
sketch14.MapMode = "FlatFace"
sketch14.AttachmentOffset = App.Placement(App.Vector(0, 0, 6 * 25.4), App.Rotation())
sketch14.addGeometry([
    Part.LineSegment(App.Vector(-3505, -203, 0), App.Vector(-3505, -1067, 0)),
    Part.LineSegment(App.Vector(-3505, -1067, 0), App.Vector(-2642, -1067, 0)),
    Part.LineSegment(App.Vector(-2642, -1067, 0), App.Vector(-2642, -203, 0)),
    Part.LineSegment(App.Vector(-2642, -203, 0), App.Vector(-3505, -203, 0)),
], False)
sketch14.addConstraint([
    Sketcher.Constraint("Coincident", 0, 2, 1, 1),
    Sketcher.Constraint("Coincident", 1, 2, 2, 1),
    Sketcher.Constraint("Coincident", 2, 2, 3, 1),
    Sketcher.Constraint("Coincident", 3, 2, 0, 1),
    Sketcher.Constraint("Vertical", 0),
    Sketcher.Constraint("Horizontal", 1),
    Sketcher.Constraint("Vertical", 2),
    Sketcher.Constraint("Horizontal", 3),
    Sketcher.Constraint("Equal", 3, 0),
    Sketcher.Constraint("DistanceX", 1, 1, 1, 2, Q("34 in")),
    Sketcher.Constraint("DistanceX", 0, 2, -1, 1, Q("138 in")),
    Sketcher.Constraint("DistanceY", 0, 2, -1, 1, Q("42 in")),
])
pocket8 = body.newObject("PartDesign::Pocket", "Pocket007")
pocket8.Profile = sketch14
pocket8.Length = Q("3 in")

sketch15 = body.newObject("Sketcher::SketchObject", "Sketch014")
sketch15.AttachmentSupport = (doc.getObject("XY_Plane"), [""])
sketch15.MapMode = "FlatFace"
sketch15.AttachmentOffset = App.Placement(App.Vector(0, 0, 6 * 25.4), App.Rotation())
sketch15.addGeometry([
    Part.LineSegment(App.Vector(-2584, -146, 0), App.Vector(-3505, -146, 0)),
    Part.LineSegment(App.Vector(-3505, -146, 0), App.Vector(-3505, -159, 0)),
    Part.LineSegment(App.Vector(-3505, -159, 0), App.Vector(-2597, -159, 0)),
    Part.LineSegment(App.Vector(-2597, -159, 0), App.Vector(-2597, -1067, 0)),
    Part.LineSegment(App.Vector(-2597, -1067, 0), App.Vector(-2584, -1067, 0)),
    Part.LineSegment(App.Vector(-2584, -1067, 0), App.Vector(-2584, -146, 0)),
], False)
sketch15.addConstraint([
    Sketcher.Constraint("Coincident", 0, 2, 1, 1),
    Sketcher.Constraint("Coincident", 1, 2, 2, 1),
    Sketcher.Constraint("Coincident", 2, 2, 3, 1),
    Sketcher.Constraint("Coincident", 3, 2, 4, 1),
    Sketcher.Constraint("Coincident", 4, 2, 5, 1),
    Sketcher.Constraint("Coincident", 5, 2, 0, 1),
    Sketcher.Constraint("Horizontal", 0),
    Sketcher.Constraint("Vertical", 1),
    Sketcher.Constraint("Horizontal", 2),
    Sketcher.Constraint("Vertical", 3),
    Sketcher.Constraint("Horizontal", 4),
    Sketcher.Constraint("Vertical", 5),
    Sketcher.Constraint("Equal", 4, 1),
    Sketcher.Constraint("Equal", 2, 3),
    Sketcher.Constraint("DistanceX", 4, 1, 4, 2, Q("0.5 in")),
    Sketcher.Constraint("DistanceX", 0, 2, -1, 1, Q("138 in")),
    Sketcher.Constraint("DistanceY", 3, 2, -1, 1, Q("42 in")),
    Sketcher.Constraint("DistanceX", 0, 2, 0, 1, Q("36.25 in")),
])
pad7 = body.newObject("PartDesign::Pad", "Pad006")
pad7.Profile = sketch15
pad7.Length = Q("72 in")

sketch16 = body.newObject("Sketcher::SketchObject", "Sketch015")
sketch16.AttachmentSupport = (doc.getObject("XZ_Plane"), [""])
sketch16.MapMode = "FlatFace"
sketch16.AttachmentOffset = App.Placement(App.Vector(0, 0, 48 * 25.4), App.Rotation())
sketch16.addGeometry([
    Part.LineSegment(App.Vector(-3378, 2845, 0), App.Vector(-3378, 2540, 0)),
    Part.LineSegment(App.Vector(-3378, 2540, 0), App.Vector(-1346, 2540, 0)),
    Part.LineSegment(App.Vector(-1346, 2540, 0), App.Vector(-1346, 2845, 0)),
    Part.LineSegment(App.Vector(-1346, 2845, 0), App.Vector(-3378, 2845, 0)),
], False)
sketch16.addConstraint([
    Sketcher.Constraint("Coincident", 0, 2, 1, 1),
    Sketcher.Constraint("Coincident", 1, 2, 2, 1),
    Sketcher.Constraint("Coincident", 2, 2, 3, 1),
    Sketcher.Constraint("Coincident", 3, 2, 0, 1),
    Sketcher.Constraint("Vertical", 0),
    Sketcher.Constraint("Horizontal", 1),
    Sketcher.Constraint("Vertical", 2),
    Sketcher.Constraint("Horizontal", 3),
    Sketcher.Constraint("DistanceX", 1, 1, 1, 2, Q("80 in")),
    Sketcher.Constraint("DistanceY", 0, 2, 0, 1, Q("12 in")),
    Sketcher.Constraint("DistanceX", 0, 2, -1, 1, Q("133 in")),
    Sketcher.Constraint("DistanceY", -1, 1, 0, 2, Q("100 in")),
])
pocket9 = body.newObject("PartDesign::Pocket", "Pocket008")
pocket9.Profile = sketch16
pocket9.Length = Q("6 in")

doc.recompute()
